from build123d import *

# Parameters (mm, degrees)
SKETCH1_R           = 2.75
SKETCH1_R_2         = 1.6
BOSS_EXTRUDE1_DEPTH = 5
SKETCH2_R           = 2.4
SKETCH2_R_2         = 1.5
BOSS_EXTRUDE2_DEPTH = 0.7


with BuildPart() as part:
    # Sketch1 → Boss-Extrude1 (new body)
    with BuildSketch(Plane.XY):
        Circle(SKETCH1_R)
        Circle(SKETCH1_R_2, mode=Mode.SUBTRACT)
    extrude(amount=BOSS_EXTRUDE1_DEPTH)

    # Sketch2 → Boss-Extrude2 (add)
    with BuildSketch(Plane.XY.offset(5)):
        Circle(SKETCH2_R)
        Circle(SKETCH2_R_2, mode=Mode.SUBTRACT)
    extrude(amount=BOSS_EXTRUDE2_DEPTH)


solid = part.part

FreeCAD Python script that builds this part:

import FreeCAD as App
import Part
import Sketcher
Q = App.Units.Quantity

doc = App.newDocument("Part")
body = doc.addObject("PartDesign::Body", "Body")

sketch1 = body.newObject("Sketcher::SketchObject", "Sketch")
sketch1.AttachmentSupport = (doc.getObject("XY_Plane"), [""])
sketch1.MapMode = "FlatFace"
sketch1.addGeometry([
    Part.Circle(App.Vector(0, 0, 0), App.Vector(0, 0, 1), 2.8),
    Part.Circle(App.Vector(0, 0, 0), App.Vector(0, 0, 1), 1.6),
], False)
sketch1.addConstraint([
    Sketcher.Constraint("Coincident", 0, 3, -1, 1),
    Sketcher.Constraint("Coincident", 1, 3, -1, 1),
    Sketcher.Constraint("Diameter", 0, Q("5.5 mm")),
    Sketcher.Constraint("Diameter", 1, Q("3.2 mm")),
])
pad1 = body.newObject("PartDesign::Pad", "Pad")
pad1.Profile = sketch1
pad1.Length = 5

sketch2 = body.newObject("Sketcher::SketchObject", "Sketch001")
sketch2.AttachmentSupport = (doc.getObject("XY_Plane"), [""])
sketch2.MapMode = "FlatFace"
sketch2.AttachmentOffset = App.Placement(App.Vector(0, 0, 5), App.Rotation())
sketch2.addGeometry([
    Part.Circle(App.Vector(0, 0, 0), App.Vector(0, 0, 1), 2.4),
    Part.Circle(App.Vector(0, 0, 0), App.Vector(0, 0, 1), 1.5),
], False)
sketch2.addConstraint([
    Sketcher.Constraint("Coincident", 0, 3, -1, 1),
    Sketcher.Constraint("Coincident", 1, 3, -1, 1),
    Sketcher.Constraint("Diameter", 1, Q("3 mm")),
    Sketcher.Constraint("Diameter", 0, Q("4.8 mm")),
])
pad2 = body.newObject("PartDesign::Pad", "Pad001")
pad2.Profile = sketch2
pad2.Length = 0.7

doc.recompute()
